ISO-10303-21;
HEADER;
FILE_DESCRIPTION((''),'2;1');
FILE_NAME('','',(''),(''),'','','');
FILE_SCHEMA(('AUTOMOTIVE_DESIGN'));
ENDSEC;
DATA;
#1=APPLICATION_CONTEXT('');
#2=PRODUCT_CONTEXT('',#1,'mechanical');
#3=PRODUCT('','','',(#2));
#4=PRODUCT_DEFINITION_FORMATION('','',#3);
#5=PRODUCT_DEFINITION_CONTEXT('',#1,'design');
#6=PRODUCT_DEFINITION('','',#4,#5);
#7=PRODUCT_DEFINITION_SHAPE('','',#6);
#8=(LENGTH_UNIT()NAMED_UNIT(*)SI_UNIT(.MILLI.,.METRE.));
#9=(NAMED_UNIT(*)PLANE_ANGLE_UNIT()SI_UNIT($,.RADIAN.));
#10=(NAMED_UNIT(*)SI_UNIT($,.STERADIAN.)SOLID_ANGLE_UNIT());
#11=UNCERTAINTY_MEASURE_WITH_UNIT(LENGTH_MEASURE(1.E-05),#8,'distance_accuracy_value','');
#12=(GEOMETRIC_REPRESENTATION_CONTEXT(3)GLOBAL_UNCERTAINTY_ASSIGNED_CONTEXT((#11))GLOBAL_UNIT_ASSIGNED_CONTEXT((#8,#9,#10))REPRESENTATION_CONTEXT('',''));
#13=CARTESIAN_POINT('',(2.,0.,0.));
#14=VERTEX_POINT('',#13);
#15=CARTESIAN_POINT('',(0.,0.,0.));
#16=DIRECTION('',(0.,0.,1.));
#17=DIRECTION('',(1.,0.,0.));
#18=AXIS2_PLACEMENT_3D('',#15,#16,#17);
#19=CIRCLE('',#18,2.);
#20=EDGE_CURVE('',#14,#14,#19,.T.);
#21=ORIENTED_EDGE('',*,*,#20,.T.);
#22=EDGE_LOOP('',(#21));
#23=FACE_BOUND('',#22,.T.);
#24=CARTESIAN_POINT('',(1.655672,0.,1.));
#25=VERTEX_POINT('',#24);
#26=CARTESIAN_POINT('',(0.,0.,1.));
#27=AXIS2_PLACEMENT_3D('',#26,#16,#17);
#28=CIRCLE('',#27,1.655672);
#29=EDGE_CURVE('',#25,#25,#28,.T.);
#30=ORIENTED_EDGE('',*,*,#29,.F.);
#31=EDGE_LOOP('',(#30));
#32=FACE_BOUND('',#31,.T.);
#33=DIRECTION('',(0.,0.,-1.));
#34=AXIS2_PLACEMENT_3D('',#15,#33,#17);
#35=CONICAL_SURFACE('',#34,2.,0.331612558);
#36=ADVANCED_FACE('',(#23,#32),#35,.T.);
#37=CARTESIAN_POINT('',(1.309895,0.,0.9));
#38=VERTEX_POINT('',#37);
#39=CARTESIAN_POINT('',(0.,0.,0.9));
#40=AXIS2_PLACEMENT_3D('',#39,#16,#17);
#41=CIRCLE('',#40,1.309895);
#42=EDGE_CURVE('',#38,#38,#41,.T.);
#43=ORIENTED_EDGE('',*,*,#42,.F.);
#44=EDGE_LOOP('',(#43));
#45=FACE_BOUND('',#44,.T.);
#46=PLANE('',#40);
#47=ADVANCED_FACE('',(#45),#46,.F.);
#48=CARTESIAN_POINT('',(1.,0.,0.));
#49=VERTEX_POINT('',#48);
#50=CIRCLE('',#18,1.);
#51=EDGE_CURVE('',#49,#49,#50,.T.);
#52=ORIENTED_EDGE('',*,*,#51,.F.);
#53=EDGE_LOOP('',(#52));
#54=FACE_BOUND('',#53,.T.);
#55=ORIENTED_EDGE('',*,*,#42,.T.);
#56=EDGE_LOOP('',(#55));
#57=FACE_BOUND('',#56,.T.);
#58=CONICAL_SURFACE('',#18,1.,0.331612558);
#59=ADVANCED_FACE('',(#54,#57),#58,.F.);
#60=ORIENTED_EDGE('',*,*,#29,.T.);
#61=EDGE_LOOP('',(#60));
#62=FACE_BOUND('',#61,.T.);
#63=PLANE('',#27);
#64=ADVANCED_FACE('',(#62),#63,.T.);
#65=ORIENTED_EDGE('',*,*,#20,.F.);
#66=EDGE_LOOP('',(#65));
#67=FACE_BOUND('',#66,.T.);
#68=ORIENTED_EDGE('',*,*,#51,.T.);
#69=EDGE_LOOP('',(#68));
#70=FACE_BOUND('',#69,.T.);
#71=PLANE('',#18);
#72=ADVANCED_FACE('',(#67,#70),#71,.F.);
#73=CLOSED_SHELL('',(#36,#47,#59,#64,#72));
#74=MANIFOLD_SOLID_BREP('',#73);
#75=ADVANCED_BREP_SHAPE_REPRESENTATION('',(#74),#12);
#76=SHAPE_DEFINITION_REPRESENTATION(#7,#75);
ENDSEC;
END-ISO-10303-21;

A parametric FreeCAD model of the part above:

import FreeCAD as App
import Part
import Sketcher
from FreeCAD import Vector
Q = App.Units.Quantity


def faces_at(feature, points):
    """Names of the faces that lie closest to the given points."""
    faces = feature.Shape.Faces
    near = lambda p: min(range(len(faces)), key=lambda i: faces[i].distToShape(Part.Vertex(*p))[0])
    return sorted({f"Face{near(p) + 1}" for p in points})

doc = App.newDocument("Part")
body = doc.addObject("PartDesign::Body", "Body")

sketch1 = body.newObject("Sketcher::SketchObject", "Sketch")
sketch1.AttachmentSupport = (doc.getObject("XY_Plane"), [""])
sketch1.MapMode = "FlatFace"
sketch1.addGeometry([
    Part.Circle(Vector(0, 0, 0), Vector(0, 0, 1), 2),
    Part.Circle(Vector(0, 0, 0), Vector(0, 0, 1), 1),
], False)
sketch1.addConstraint([
    Sketcher.Constraint("Coincident", 0, 3, -1, 1),
    Sketcher.Constraint("Coincident", 1, 3, -1, 1),
    Sketcher.Constraint("Diameter", 0, Q("4 mm")),
    Sketcher.Constraint("Diameter", 1, Q("2 mm")),
])
pad1 = body.newObject("PartDesign::Pad", "Pad")
pad1.Profile = sketch1
pad1.Length = 1
doc.recompute()

draft = body.newObject("PartDesign::Draft", "Draft")
draft.Base = (pad1, faces_at(pad1, [(-2, 0, 0.5), (-1, 0, 0.5)]))
draft.NeutralPlane = (doc.getObject("XY_Plane"), [""])
draft.Angle = 19
draft.Reversed = False

sketch2 = body.newObject("Sketcher::SketchObject", "Sketch001")
sketch2.AttachmentSupport = (doc.getObject("XY_Plane"), [""])
sketch2.MapMode = "FlatFace"
sketch2.AttachmentOffset = App.Placement(Vector(0, 0, 1), App.Rotation())
sketch2.addGeometry(Part.Circle(Vector(0, 0, 0), Vector(0, 0, 1), 1.7), False)
sketch2.addConstraint([
    Sketcher.Constraint("Coincident", 0, 3, -1, 1),
    Sketcher.Constraint("Diameter", 0, Q("3.311345 mm")),
])
pad2 = body.newObject("PartDesign::Pad", "Pad001")
pad2.Profile = sketch2
pad2.Length = 0.1
pad2.Reversed = True

doc.recompute()
